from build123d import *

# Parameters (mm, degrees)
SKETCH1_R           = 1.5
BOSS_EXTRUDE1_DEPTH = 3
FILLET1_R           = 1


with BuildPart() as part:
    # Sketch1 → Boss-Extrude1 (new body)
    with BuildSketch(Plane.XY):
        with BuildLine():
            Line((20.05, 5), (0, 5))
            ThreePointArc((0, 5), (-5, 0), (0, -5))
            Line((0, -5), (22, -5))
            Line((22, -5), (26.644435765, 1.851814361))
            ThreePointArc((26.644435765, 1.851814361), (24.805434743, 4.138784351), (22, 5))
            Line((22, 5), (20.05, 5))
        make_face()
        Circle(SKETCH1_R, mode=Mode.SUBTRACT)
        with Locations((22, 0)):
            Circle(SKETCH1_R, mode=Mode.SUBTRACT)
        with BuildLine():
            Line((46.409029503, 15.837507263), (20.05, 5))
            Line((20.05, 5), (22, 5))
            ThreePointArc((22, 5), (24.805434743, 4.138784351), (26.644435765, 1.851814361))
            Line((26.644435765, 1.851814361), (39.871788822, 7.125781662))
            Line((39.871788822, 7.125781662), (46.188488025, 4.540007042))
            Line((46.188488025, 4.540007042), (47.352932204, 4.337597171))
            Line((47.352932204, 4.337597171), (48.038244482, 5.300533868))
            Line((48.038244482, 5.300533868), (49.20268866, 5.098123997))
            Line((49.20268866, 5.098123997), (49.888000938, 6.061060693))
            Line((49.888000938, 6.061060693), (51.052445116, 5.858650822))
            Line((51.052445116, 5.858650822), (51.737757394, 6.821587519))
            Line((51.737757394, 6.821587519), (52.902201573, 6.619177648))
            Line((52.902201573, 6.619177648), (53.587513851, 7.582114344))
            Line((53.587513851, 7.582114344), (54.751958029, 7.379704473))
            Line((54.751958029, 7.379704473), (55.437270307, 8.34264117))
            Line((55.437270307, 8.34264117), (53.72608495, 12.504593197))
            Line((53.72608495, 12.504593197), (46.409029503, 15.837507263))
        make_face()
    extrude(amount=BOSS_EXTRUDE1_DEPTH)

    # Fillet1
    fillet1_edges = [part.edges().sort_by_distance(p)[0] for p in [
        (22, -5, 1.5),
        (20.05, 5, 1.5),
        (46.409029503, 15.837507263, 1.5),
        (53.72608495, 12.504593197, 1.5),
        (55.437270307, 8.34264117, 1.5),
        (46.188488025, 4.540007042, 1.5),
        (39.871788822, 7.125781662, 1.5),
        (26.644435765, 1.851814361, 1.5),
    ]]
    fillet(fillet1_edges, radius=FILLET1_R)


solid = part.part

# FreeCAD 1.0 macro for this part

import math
import FreeCAD as App
import Part
import Sketcher
Q = App.Units.Quantity


def edges_at(feature, points):
    """Names of the edges that pass closest to the given points."""
    edges = feature.Shape.Edges
    near = lambda p: min(range(len(edges)), key=lambda i: edges[i].distToShape(Part.Vertex(*p))[0])
    return sorted({f"Edge{near(p) + 1}" for p in points})

doc = App.newDocument("Part")
params = doc.addObject("Spreadsheet::Sheet", "Params")
for row, (alias, value) in enumerate([
    ("sketch1_diameter", "3 mm"),
    ("sketch1_radius", "5 mm"),
    ("sketch1_width", "22 mm"),
    ("sketch1_length", "4.5 mm"),
    ("sketch1_length2", "28.5 mm"),
    ("pad1_length", "3 mm"),
    ("fillet_radius", "1 mm"),
], start=1):
    params.set(f"A{row}", alias)
    params.set(f"B{row}", "=" + value)
    params.setAlias(f"B{row}", alias)

body = doc.addObject("PartDesign::Body", "Body")

# Sketch on XY plane
sketch1 = body.newObject("Sketcher::SketchObject", "Sketch")
sketch1.AttachmentSupport = (doc.getObject("XY_Plane"), [""])
sketch1.MapMode = "FlatFace"
sketch1.addGeometry([
    Part.ArcOfCircle(Part.Circle(App.Vector(0, 0, 0), App.Vector(0, 0, 1), 5), math.radians(90), math.radians(270)),  # 0
    Part.LineSegment(App.Vector(0, -5, 0), App.Vector(22, -5, 0)),  # 1
    Part.LineSegment(App.Vector(22, -5, 0), App.Vector(26.644436, 1.851814, 0)),  # 2
    Part.LineSegment(App.Vector(26.644436, 1.851814, 0), App.Vector(39.871789, 7.125782, 0)),  # 3
    Part.LineSegment(App.Vector(39.871789, 7.125782, 0), App.Vector(46.188488, 4.540007, 0)),  # 4
    Part.LineSegment(App.Vector(46.188488, 4.540007, 0), App.Vector(47.352932, 4.337597, 0)),  # 5
    Part.LineSegment(App.Vector(47.352932, 4.337597, 0), App.Vector(48.038244, 5.300534, 0)),  # 6
    Part.LineSegment(App.Vector(48.038244, 5.300534, 0), App.Vector(49.202689, 5.098124, 0)),  # 7
    Part.LineSegment(App.Vector(49.202689, 5.098124, 0), App.Vector(49.888001, 6.061061, 0)),  # 8
    Part.LineSegment(App.Vector(49.888001, 6.061061, 0), App.Vector(51.052445, 5.858651, 0)),  # 9
    Part.LineSegment(App.Vector(51.052445, 5.858651, 0), App.Vector(51.737757, 6.821588, 0)),  # 10
    Part.LineSegment(App.Vector(51.737757, 6.821588, 0), App.Vector(52.902202, 6.619178, 0)),  # 11
    Part.LineSegment(App.Vector(52.902202, 6.619178, 0), App.Vector(53.587514, 7.582114, 0)),  # 12
    Part.LineSegment(App.Vector(53.587514, 7.582114, 0), App.Vector(54.751958, 7.379704, 0)),  # 13
    Part.LineSegment(App.Vector(54.751958, 7.379704, 0), App.Vector(55.43727, 8.342641, 0)),  # 14
    Part.LineSegment(App.Vector(55.43727, 8.342641, 0), App.Vector(53.726085, 12.504593, 0)),  # 15
    Part.LineSegment(App.Vector(53.726085, 12.504593, 0), App.Vector(46.40903, 15.837507, 0)),  # 16
    Part.LineSegment(App.Vector(46.40903, 15.837507, 0), App.Vector(20.05, 5, 0)),  # 17
    Part.LineSegment(App.Vector(20.05, 5, 0), App.Vector(0, 5, 0)),  # 18
    Part.Circle(App.Vector(0, 0, 0), App.Vector(0, 0, 1), 1.5),  # 19
    Part.Circle(App.Vector(22, 0, 0), App.Vector(0, 0, 1), 1.5),  # 20
], False)
sketch1.addConstraint([
    Sketcher.Constraint("Tangent", 0, 2, 1, 1),
    Sketcher.Constraint("Coincident", 1, 2, 2, 1),
    Sketcher.Constraint("Coincident", 2, 2, 3, 1),
    Sketcher.Constraint("Coincident", 3, 2, 4, 1),
    Sketcher.Constraint("Coincident", 4, 2, 5, 1),
    Sketcher.Constraint("Coincident", 5, 2, 6, 1),
    Sketcher.Constraint("Coincident", 6, 2, 7, 1),
    Sketcher.Constraint("Coincident", 7, 2, 8, 1),
    Sketcher.Constraint("Coincident", 8, 2, 9, 1),
    Sketcher.Constraint("Coincident", 9, 2, 10, 1),
    Sketcher.Constraint("Coincident", 10, 2, 11, 1),
    Sketcher.Constraint("Coincident", 11, 2, 12, 1),
    Sketcher.Constraint("Coincident", 12, 2, 13, 1),
    Sketcher.Constraint("Coincident", 13, 2, 14, 1),
    Sketcher.Constraint("Coincident", 14, 2, 15, 1),
    Sketcher.Constraint("Coincident", 15, 2, 16, 1),
    Sketcher.Constraint("Coincident", 16, 2, 17, 1),
    Sketcher.Constraint("Coincident", 17, 2, 18, 1),
    Sketcher.Constraint("Tangent", 18, 2, 0, 1),
    Sketcher.Constraint("Horizontal", 1),
    Sketcher.Constraint("Horizontal", 18),
    Sketcher.Constraint("Coincident", 0, 3, -1, 1),
    Sketcher.Constraint("Coincident", 19, 3, -1, 1),
    Sketcher.Constraint("Equal", 19, 20),
    Sketcher.Constraint("PointOnObject", 20, 3, -1),
    Sketcher.Constraint("Parallel", 5, 7),
    Sketcher.Constraint("Parallel", 6, 8),
    Sketcher.Constraint("Parallel", 7, 9),
    Sketcher.Constraint("Parallel", 8, 10),
    Sketcher.Constraint("Parallel", 9, 11),
    Sketcher.Constraint("Parallel", 10, 12),
    Sketcher.Constraint("Parallel", 11, 13),
    Sketcher.Constraint("Parallel", 12, 14),
    Sketcher.Constraint("Perpendicular", 15, 17),
    Sketcher.Constraint("Vertical", 20, 3, 1, 2),
    Sketcher.Constraint("Equal", 5, 6),
    Sketcher.Constraint("Equal", 6, 7),
    Sketcher.Constraint("Equal", 7, 8),
    Sketcher.Constraint("Equal", 8, 9),
    Sketcher.Constraint("Equal", 9, 10),
    Sketcher.Constraint("Equal", 10, 11),
    Sketcher.Constraint("Equal", 11, 12),
    Sketcher.Constraint("Equal", 12, 13),
    Sketcher.Constraint("Equal", 13, 14),
    Sketcher.Constraint("Diameter", 19, 3.0),
    Sketcher.Constraint("Radius", 0, 5.0),
    Sketcher.Constraint("DistanceX", 1, 1, 1, 2, 22.0),
    Sketcher.Constraint("Distance", 15, 4.5),
    Sketcher.Constraint("Distance", 17, 28.5),
    Sketcher.Constraint("DistanceX", 18, 2, 18, 1, 20.05),
    Sketcher.Constraint("Angle", 15, Q("112.35 deg")),
    Sketcher.Constraint("Distance", 3, 14.24),
    Sketcher.Constraint("DistanceX", -1, 1, 8, 2, 49.888001),
    Sketcher.Constraint("DistanceX", -1, 1, 11, 2, 52.902202),
    Sketcher.Constraint("DistanceX", 3, 2, 4, 2, 6.316699),
    Sketcher.Constraint("Distance", 2, 8.277569),
    Sketcher.Constraint("Distance", 4, 6.825461),
    Sketcher.Constraint("DistanceX", -1, 1, 3, 2, 39.871789),
    Sketcher.Constraint("DistanceY", -1, 1, 3, 2, 7.125782),
    Sketcher.Constraint("DistanceY", -1, 1, 8, 2, 6.061061),
])
sketch1.setExpression("Constraints[44]", "Params.sketch1_diameter")
sketch1.setExpression("Constraints[45]", "Params.sketch1_radius")
sketch1.setExpression("Constraints[46]", "Params.sketch1_width")
sketch1.setExpression("Constraints[47]", "Params.sketch1_length")
sketch1.setExpression("Constraints[48]", "Params.sketch1_length2")
pad1 = body.newObject("PartDesign::Pad", "Pad")
pad1.Profile = sketch1
pad1.setExpression("Length", "Params.pad1_length")
doc.recompute()

fillet = body.newObject("PartDesign::Fillet", "Fillet")
fillet.Base = (pad1, edges_at(pad1, [
    (22, -5, 1.5),
    (20.05, 5, 1.5),
    (46.409, 15.838, 1.5),
    (53.726, 12.505, 1.5),
    (55.437, 8.343, 1.5),
    (46.188, 4.54, 1.5),
    (39.872, 7.126, 1.5),
    (26.644, 1.852, 1.5),
]))
fillet.setExpression("Radius", "Params.fillet_radius")

doc.recompute()
